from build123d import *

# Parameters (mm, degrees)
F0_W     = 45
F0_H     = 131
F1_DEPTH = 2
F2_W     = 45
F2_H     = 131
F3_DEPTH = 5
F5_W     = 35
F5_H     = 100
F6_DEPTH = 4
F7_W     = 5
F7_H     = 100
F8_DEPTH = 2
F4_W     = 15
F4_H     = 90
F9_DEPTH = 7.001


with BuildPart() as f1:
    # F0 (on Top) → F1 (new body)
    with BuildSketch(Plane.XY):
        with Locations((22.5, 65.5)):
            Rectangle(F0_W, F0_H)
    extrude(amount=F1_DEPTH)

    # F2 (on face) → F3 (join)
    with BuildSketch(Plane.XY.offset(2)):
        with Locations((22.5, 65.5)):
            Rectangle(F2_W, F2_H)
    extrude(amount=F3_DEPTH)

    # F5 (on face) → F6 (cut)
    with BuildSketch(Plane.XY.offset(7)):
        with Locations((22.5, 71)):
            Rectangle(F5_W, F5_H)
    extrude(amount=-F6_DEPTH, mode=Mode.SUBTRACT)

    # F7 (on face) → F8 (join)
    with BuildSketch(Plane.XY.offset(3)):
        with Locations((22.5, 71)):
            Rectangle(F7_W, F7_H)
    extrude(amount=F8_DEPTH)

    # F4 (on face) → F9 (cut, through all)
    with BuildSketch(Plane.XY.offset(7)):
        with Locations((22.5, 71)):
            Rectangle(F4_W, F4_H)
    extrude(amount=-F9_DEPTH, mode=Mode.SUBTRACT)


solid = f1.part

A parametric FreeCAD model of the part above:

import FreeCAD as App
import Part
import Sketcher

V = App.Vector
Q = App.Units.Quantity

doc = App.newDocument("Part")
body = doc.addObject("PartDesign::Body", "Body")

sketch1 = body.newObject("Sketcher::SketchObject", "Sketch")
sketch1.AttachmentSupport = (doc.getObject("XY_Plane"), [""])
sketch1.MapMode = "FlatFace"
sketch1.addGeometry([
    Part.LineSegment(V(0, 131, 0), V(0, 0, 0)),
    Part.LineSegment(V(0, 0, 0), V(45, 0, 0)),
    Part.LineSegment(V(45, 0, 0), V(45, 131, 0)),
    Part.LineSegment(V(45, 131, 0), V(0, 131, 0)),
], False)
sketch1.addConstraint([
    Sketcher.Constraint("Coincident", 0, 2, 1, 1),
    Sketcher.Constraint("Coincident", 1, 2, 2, 1),
    Sketcher.Constraint("Coincident", 2, 2, 3, 1),
    Sketcher.Constraint("Coincident", 3, 2, 0, 1),
    Sketcher.Constraint("Vertical", 0),
    Sketcher.Constraint("Horizontal", 1),
    Sketcher.Constraint("Vertical", 2),
    Sketcher.Constraint("Horizontal", 3),
    Sketcher.Constraint("Coincident", 0, 2, -1, 1),
    Sketcher.Constraint("DistanceX", 1, 1, 1, 2, Q("45 mm")),
    Sketcher.Constraint("DistanceY", 0, 2, 0, 1, Q("131 mm")),
])
pad1 = body.newObject("PartDesign::Pad", "Pad")
pad1.Profile = sketch1
pad1.Length = 2

sketch2 = body.newObject("Sketcher::SketchObject", "Sketch001")
sketch2.AttachmentSupport = (doc.getObject("XY_Plane"), [""])
sketch2.MapMode = "FlatFace"
sketch2.AttachmentOffset = App.Placement(V(0, 0, 2), App.Rotation())
sketch2.addGeometry([
    Part.LineSegment(V(0, 131, 0), V(0, 0, 0)),
    Part.LineSegment(V(0, 0, 0), V(45, 0, 0)),
    Part.LineSegment(V(45, 0, 0), V(45, 131, 0)),
    Part.LineSegment(V(45, 131, 0), V(0, 131, 0)),
], False)
sketch2.addConstraint([
    Sketcher.Constraint("Coincident", 0, 2, 1, 1),
    Sketcher.Constraint("Coincident", 1, 2, 2, 1),
    Sketcher.Constraint("Coincident", 2, 2, 3, 1),
    Sketcher.Constraint("Coincident", 3, 2, 0, 1),
    Sketcher.Constraint("Vertical", 0),
    Sketcher.Constraint("Horizontal", 1),
    Sketcher.Constraint("Vertical", 2),
    Sketcher.Constraint("Horizontal", 3),
    Sketcher.Constraint("Coincident", 0, 2, -1, 1),
    Sketcher.Constraint("DistanceX", 1, 1, 1, 2, Q("45 mm")),
    Sketcher.Constraint("DistanceY", 0, 2, 0, 1, Q("131 mm")),
])
pad2 = body.newObject("PartDesign::Pad", "Pad001")
pad2.Profile = sketch2
pad2.Length = 5

sketch3 = body.newObject("Sketcher::SketchObject", "Sketch002")
sketch3.AttachmentSupport = (doc.getObject("XY_Plane"), [""])
sketch3.MapMode = "FlatFace"
sketch3.AttachmentOffset = App.Placement(V(0, 0, 7), App.Rotation())
sketch3.addGeometry([
    Part.LineSegment(V(5, 121, 0), V(5, 21, 0)),
    Part.LineSegment(V(5, 21, 0), V(40, 21, 0)),
    Part.LineSegment(V(40, 21, 0), V(40, 121, 0)),
    Part.LineSegment(V(40, 121, 0), V(5, 121, 0)),
], False)
sketch3.addConstraint([
    Sketcher.Constraint("Coincident", 0, 2, 1, 1),
    Sketcher.Constraint("Coincident", 1, 2, 2, 1),
    Sketcher.Constraint("Coincident", 2, 2, 3, 1),
    Sketcher.Constraint("Coincident", 3, 2, 0, 1),
    Sketcher.Constraint("Vertical", 0),
    Sketcher.Constraint("Horizontal", 1),
    Sketcher.Constraint("Vertical", 2),
    Sketcher.Constraint("Horizontal", 3),
    Sketcher.Constraint("DistanceX", 1, 1, 1, 2, Q("35 mm")),
    Sketcher.Constraint("DistanceY", 0, 2, 0, 1, Q("100 mm")),
    Sketcher.Constraint("DistanceX", -1, 1, 0, 2, Q("5 mm")),
    Sketcher.Constraint("DistanceY", -1, 1, 0, 2, Q("21 mm")),
])
pocket1 = body.newObject("PartDesign::Pocket", "Pocket")
pocket1.Profile = sketch3
pocket1.Length = 4

sketch4 = body.newObject("Sketcher::SketchObject", "Sketch003")
sketch4.AttachmentSupport = (doc.getObject("XY_Plane"), [""])
sketch4.MapMode = "FlatFace"
sketch4.AttachmentOffset = App.Placement(V(0, 0, 3), App.Rotation())
sketch4.addGeometry([
    Part.LineSegment(V(20, 121, 0), V(20, 21, 0)),
    Part.LineSegment(V(20, 21, 0), V(25, 21, 0)),
    Part.LineSegment(V(25, 21, 0), V(25, 121, 0)),
    Part.LineSegment(V(25, 121, 0), V(20, 121, 0)),
], False)
sketch4.addConstraint([
    Sketcher.Constraint("Coincident", 0, 2, 1, 1),
    Sketcher.Constraint("Coincident", 1, 2, 2, 1),
    Sketcher.Constraint("Coincident", 2, 2, 3, 1),
    Sketcher.Constraint("Coincident", 3, 2, 0, 1),
    Sketcher.Constraint("Vertical", 0),
    Sketcher.Constraint("Horizontal", 1),
    Sketcher.Constraint("Vertical", 2),
    Sketcher.Constraint("Horizontal", 3),
    Sketcher.Constraint("DistanceX", 1, 1, 1, 2, Q("5 mm")),
    Sketcher.Constraint("DistanceY", 0, 2, 0, 1, Q("100 mm")),
    Sketcher.Constraint("DistanceX", -1, 1, 0, 2, Q("20 mm")),
    Sketcher.Constraint("DistanceY", -1, 1, 0, 2, Q("21 mm")),
])
pad3 = body.newObject("PartDesign::Pad", "Pad002")
pad3.Profile = sketch4
pad3.Length = 2

sketch5 = body.newObject("Sketcher::SketchObject", "Sketch004")
sketch5.AttachmentSupport = (doc.getObject("XY_Plane"), [""])
sketch5.MapMode = "FlatFace"
sketch5.AttachmentOffset = App.Placement(V(0, 0, 7), App.Rotation())
sketch5.addGeometry([
    Part.LineSegment(V(15, 116, 0), V(15, 26, 0)),
    Part.LineSegment(V(15, 26, 0), V(30, 26, 0)),
    Part.LineSegment(V(30, 26, 0), V(30, 116, 0)),
    Part.LineSegment(V(30, 116, 0), V(15, 116, 0)),
], False)
sketch5.addConstraint([
    Sketcher.Constraint("Coincident", 0, 2, 1, 1),
    Sketcher.Constraint("Coincident", 1, 2, 2, 1),
    Sketcher.Constraint("Coincident", 2, 2, 3, 1),
    Sketcher.Constraint("Coincident", 3, 2, 0, 1),
    Sketcher.Constraint("Vertical", 0),
    Sketcher.Constraint("Horizontal", 1),
    Sketcher.Constraint("Vertical", 2),
    Sketcher.Constraint("Horizontal", 3),
    Sketcher.Constraint("DistanceX", 1, 1, 1, 2, Q("15 mm")),
    Sketcher.Constraint("DistanceY", 0, 2, 0, 1, Q("90 mm")),
    Sketcher.Constraint("DistanceX", -1, 1, 0, 2, Q("15 mm")),
    Sketcher.Constraint("DistanceY", -1, 1, 0, 2, Q("26 mm")),
])
pocket2 = body.newObject("PartDesign::Pocket", "Pocket001")
pocket2.Profile = sketch5
pocket2.Type = "ThroughAll"

doc.recompute()
